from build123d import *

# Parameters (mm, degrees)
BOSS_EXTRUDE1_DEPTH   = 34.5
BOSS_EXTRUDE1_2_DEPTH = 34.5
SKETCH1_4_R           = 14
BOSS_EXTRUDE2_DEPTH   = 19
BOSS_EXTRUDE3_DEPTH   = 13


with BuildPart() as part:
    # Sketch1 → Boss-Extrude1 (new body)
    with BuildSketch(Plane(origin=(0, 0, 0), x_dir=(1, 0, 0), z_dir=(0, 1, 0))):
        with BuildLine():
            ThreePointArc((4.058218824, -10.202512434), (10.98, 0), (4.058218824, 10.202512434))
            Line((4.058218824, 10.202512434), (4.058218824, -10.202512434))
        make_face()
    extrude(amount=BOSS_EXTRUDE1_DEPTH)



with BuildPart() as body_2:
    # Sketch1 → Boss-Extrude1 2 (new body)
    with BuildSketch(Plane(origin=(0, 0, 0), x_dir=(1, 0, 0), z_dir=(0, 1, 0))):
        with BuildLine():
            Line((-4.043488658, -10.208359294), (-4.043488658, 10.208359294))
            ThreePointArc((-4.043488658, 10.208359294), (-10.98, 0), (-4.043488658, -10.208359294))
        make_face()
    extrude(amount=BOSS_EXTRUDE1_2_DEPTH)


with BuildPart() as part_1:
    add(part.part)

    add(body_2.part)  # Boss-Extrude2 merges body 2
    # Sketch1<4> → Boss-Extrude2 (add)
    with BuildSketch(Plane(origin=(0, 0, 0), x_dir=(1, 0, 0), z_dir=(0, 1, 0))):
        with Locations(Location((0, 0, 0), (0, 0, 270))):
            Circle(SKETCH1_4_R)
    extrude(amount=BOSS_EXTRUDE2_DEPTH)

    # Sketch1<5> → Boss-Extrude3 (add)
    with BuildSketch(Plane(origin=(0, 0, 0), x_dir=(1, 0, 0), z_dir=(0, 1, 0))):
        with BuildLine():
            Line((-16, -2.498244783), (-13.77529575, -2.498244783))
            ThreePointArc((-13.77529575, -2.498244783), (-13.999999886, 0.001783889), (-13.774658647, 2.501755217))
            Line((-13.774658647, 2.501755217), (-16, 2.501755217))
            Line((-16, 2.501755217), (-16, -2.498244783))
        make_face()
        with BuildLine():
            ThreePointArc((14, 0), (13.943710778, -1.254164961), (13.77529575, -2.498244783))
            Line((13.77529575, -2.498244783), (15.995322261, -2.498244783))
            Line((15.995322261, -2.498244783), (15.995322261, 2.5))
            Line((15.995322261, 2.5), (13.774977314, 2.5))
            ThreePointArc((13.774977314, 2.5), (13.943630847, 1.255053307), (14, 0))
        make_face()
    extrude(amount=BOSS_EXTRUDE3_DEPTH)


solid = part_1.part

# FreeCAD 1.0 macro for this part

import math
import FreeCAD as App
import Part
import Sketcher
from FreeCAD import Vector

doc = App.newDocument("Part")
body = doc.addObject("PartDesign::Body", "Body")

# Sketch on XZ plane
sketch1 = body.newObject("Sketcher::SketchObject", "Sketch")
sketch1.AttachmentSupport = (doc.getObject("XZ_Plane"), [""])
sketch1.MapMode = "FlatFace"
sketch1.addGeometry(Part.ArcOfCircle(Part.Circle(Vector(0, 0, 0), Vector(0, 0, 1), 11), math.radians(-68), math.radians(68)), False)
sketch1.addGeometry(Part.LineSegment(Vector(4, -10, 0), Vector(4, 10, 0)), False)
sketch1.addConstraint(Sketcher.Constraint("Coincident", 0, 1, 1, 1))
sketch1.addConstraint(Sketcher.Constraint("Coincident", 1, 2, 0, 2))
sketch1.addConstraint(Sketcher.Constraint("Vertical", 1))
sketch1.addConstraint(Sketcher.Constraint("Coincident", 0, 3, -1, 1))
sketch1.addConstraint(Sketcher.Constraint("Radius", 0, 10.98))
sketch1.addConstraint(Sketcher.Constraint("DistanceY", 1, 1, 1, 2, 20.405025))
pad1 = body.newObject("PartDesign::Pad", "Pad")
pad1.Profile = sketch1
pad1.Length = 34.5
pad1.Reversed = True
body2 = doc.addObject("PartDesign::Body", "Body001")

# Sketch on XZ plane
sketch2 = body2.newObject("Sketcher::SketchObject", "Sketch001")
sketch2.AttachmentSupport = (doc.getObject("XZ_Plane001"), [""])
sketch2.MapMode = "FlatFace"
sketch2.addGeometry(Part.LineSegment(Vector(-4, 10, 0), Vector(-4, -10, 0)), False)
sketch2.addGeometry(Part.ArcOfCircle(Part.Circle(Vector(0, 0, 0), Vector(0, 0, 1), 11), math.radians(112), math.radians(248)), False)
sketch2.addConstraint(Sketcher.Constraint("Coincident", 0, 1, 1, 1))
sketch2.addConstraint(Sketcher.Constraint("Coincident", 1, 2, 0, 2))
sketch2.addConstraint(Sketcher.Constraint("Vertical", 0))
sketch2.addConstraint(Sketcher.Constraint("Coincident", 1, 3, -1, 1))
sketch2.addConstraint(Sketcher.Constraint("Radius", 1, 10.98))
sketch2.addConstraint(Sketcher.Constraint("DistanceY", 0, 2, 0, 1, 20.416719))
pad2 = body2.newObject("PartDesign::Pad", "Pad001")
pad2.Profile = sketch2
pad2.Length = 34.5
pad2.Reversed = True
body.AllowCompound = True
doc.recompute()

boolean = body.newObject("PartDesign::Boolean", "Boolean")
boolean.Type = "Fuse"
boolean.addObjects([body2])

# Sketch on XZ plane
sketch3 = body.newObject("Sketcher::SketchObject", "Sketch002")
sketch3.AttachmentSupport = (doc.getObject("XZ_Plane"), [""])
sketch3.MapMode = "FlatFace"
sketch3.addGeometry(Part.Circle(Vector(0, 0, 0), Vector(0, 0, 1), 14), False)
sketch3.addConstraint(Sketcher.Constraint("Coincident", 0, 3, -1, 1))
sketch3.addConstraint(Sketcher.Constraint("Diameter", 0, 28.0))
pad3 = body.newObject("PartDesign::Pad", "Pad002")
pad3.Profile = sketch3
pad3.Length = 19
pad3.Reversed = True

# Sketch on XZ plane
sketch4 = body.newObject("Sketcher::SketchObject", "Sketch003")
sketch4.AttachmentSupport = (doc.getObject("XZ_Plane"), [""])
sketch4.MapMode = "FlatFace"
sketch4.addGeometry(Part.LineSegment(Vector(-16, 2.5, 0), Vector(-13.8, 2.5, 0)), False)
sketch4.addGeometry(Part.ArcOfCircle(Part.Circle(Vector(0, 0, 0), Vector(0, 0, 1), 14), math.radians(170), math.radians(190)), False)
sketch4.addGeometry(Part.LineSegment(Vector(-13.8, -2.5, 0), Vector(-16, -2.5, 0)), False)
sketch4.addGeometry(Part.LineSegment(Vector(-16, -2.5, 0), Vector(-16, 2.5, 0)), False)
sketch4.addGeometry(Part.ArcOfCircle(Part.Circle(Vector(0, 0, 0), Vector(0, 0, 1), 14), math.radians(0), math.radians(10.28)), False)
sketch4.addGeometry(Part.LineSegment(Vector(13.8, 2.5, 0), Vector(16, 2.5, 0)), False)
sketch4.addGeometry(Part.LineSegment(Vector(16, 2.5, 0), Vector(16, -2.5, 0)), False)
sketch4.addGeometry(Part.LineSegment(Vector(16, -2.5, 0), Vector(13.8, -2.5, 0)), False)
sketch4.addGeometry(Part.ArcOfCircle(Part.Circle(Vector(0, 0, 0), Vector(0, 0, 1), 14), math.radians(-10.29), math.radians(0)), False)
sketch4.addConstraint(Sketcher.Constraint("Coincident", 0, 2, 1, 1))
sketch4.addConstraint(Sketcher.Constraint("Coincident", 1, 2, 2, 1))
sketch4.addConstraint(Sketcher.Constraint("Coincident", 2, 2, 3, 1))
sketch4.addConstraint(Sketcher.Constraint("Coincident", 3, 2, 0, 1))
sketch4.addConstraint(Sketcher.Constraint("Coincident", 4, 2, 5, 1))
sketch4.addConstraint(Sketcher.Constraint("Coincident", 5, 2, 6, 1))
sketch4.addConstraint(Sketcher.Constraint("Coincident", 6, 2, 7, 1))
sketch4.addConstraint(Sketcher.Constraint("Coincident", 7, 2, 8, 1))
sketch4.addConstraint(Sketcher.Constraint("Tangent", 8, 2, 4, 1))
sketch4.addConstraint(Sketcher.Constraint("Horizontal", 0))
sketch4.addConstraint(Sketcher.Constraint("Horizontal", 2))
sketch4.addConstraint(Sketcher.Constraint("Vertical", 3))
sketch4.addConstraint(Sketcher.Constraint("Horizontal", 5))
sketch4.addConstraint(Sketcher.Constraint("Vertical", 6))
sketch4.addConstraint(Sketcher.Constraint("Horizontal", 7))
sketch4.addConstraint(Sketcher.Constraint("Coincident", 1, 3, -1, 1))
sketch4.addConstraint(Sketcher.Constraint("Coincident", 4, 3, -1, 1))
sketch4.addConstraint(Sketcher.Constraint("Equal", 1, 4))
sketch4.addConstraint(Sketcher.Constraint("Equal", 4, 8))
sketch4.addConstraint(Sketcher.Constraint("PointOnObject", 8, 2, -1))
sketch4.addConstraint(Sketcher.Constraint("Horizontal", 3, 2, 4, 2))
sketch4.addConstraint(Sketcher.Constraint("Radius", 1, 14.0))
sketch4.addConstraint(Sketcher.Constraint("DistanceY", 3, 1, 3, 2, 5.0))
sketch4.addConstraint(Sketcher.Constraint("DistanceX", 2, 2, -1, 1, 16.0))
sketch4.addConstraint(Sketcher.Constraint("DistanceY", 6, 2, -1, 1, 2.5))
sketch4.addConstraint(Sketcher.Constraint("DistanceX", 2, 2, 2, 1, 2.225341))
sketch4.addConstraint(Sketcher.Constraint("DistanceX", 5, 1, 5, 2, 2.220027))
pad4 = body.newObject("PartDesign::Pad", "Pad003")
pad4.Profile = sketch4
pad4.Length = 13
pad4.Reversed = True

doc.recompute()
